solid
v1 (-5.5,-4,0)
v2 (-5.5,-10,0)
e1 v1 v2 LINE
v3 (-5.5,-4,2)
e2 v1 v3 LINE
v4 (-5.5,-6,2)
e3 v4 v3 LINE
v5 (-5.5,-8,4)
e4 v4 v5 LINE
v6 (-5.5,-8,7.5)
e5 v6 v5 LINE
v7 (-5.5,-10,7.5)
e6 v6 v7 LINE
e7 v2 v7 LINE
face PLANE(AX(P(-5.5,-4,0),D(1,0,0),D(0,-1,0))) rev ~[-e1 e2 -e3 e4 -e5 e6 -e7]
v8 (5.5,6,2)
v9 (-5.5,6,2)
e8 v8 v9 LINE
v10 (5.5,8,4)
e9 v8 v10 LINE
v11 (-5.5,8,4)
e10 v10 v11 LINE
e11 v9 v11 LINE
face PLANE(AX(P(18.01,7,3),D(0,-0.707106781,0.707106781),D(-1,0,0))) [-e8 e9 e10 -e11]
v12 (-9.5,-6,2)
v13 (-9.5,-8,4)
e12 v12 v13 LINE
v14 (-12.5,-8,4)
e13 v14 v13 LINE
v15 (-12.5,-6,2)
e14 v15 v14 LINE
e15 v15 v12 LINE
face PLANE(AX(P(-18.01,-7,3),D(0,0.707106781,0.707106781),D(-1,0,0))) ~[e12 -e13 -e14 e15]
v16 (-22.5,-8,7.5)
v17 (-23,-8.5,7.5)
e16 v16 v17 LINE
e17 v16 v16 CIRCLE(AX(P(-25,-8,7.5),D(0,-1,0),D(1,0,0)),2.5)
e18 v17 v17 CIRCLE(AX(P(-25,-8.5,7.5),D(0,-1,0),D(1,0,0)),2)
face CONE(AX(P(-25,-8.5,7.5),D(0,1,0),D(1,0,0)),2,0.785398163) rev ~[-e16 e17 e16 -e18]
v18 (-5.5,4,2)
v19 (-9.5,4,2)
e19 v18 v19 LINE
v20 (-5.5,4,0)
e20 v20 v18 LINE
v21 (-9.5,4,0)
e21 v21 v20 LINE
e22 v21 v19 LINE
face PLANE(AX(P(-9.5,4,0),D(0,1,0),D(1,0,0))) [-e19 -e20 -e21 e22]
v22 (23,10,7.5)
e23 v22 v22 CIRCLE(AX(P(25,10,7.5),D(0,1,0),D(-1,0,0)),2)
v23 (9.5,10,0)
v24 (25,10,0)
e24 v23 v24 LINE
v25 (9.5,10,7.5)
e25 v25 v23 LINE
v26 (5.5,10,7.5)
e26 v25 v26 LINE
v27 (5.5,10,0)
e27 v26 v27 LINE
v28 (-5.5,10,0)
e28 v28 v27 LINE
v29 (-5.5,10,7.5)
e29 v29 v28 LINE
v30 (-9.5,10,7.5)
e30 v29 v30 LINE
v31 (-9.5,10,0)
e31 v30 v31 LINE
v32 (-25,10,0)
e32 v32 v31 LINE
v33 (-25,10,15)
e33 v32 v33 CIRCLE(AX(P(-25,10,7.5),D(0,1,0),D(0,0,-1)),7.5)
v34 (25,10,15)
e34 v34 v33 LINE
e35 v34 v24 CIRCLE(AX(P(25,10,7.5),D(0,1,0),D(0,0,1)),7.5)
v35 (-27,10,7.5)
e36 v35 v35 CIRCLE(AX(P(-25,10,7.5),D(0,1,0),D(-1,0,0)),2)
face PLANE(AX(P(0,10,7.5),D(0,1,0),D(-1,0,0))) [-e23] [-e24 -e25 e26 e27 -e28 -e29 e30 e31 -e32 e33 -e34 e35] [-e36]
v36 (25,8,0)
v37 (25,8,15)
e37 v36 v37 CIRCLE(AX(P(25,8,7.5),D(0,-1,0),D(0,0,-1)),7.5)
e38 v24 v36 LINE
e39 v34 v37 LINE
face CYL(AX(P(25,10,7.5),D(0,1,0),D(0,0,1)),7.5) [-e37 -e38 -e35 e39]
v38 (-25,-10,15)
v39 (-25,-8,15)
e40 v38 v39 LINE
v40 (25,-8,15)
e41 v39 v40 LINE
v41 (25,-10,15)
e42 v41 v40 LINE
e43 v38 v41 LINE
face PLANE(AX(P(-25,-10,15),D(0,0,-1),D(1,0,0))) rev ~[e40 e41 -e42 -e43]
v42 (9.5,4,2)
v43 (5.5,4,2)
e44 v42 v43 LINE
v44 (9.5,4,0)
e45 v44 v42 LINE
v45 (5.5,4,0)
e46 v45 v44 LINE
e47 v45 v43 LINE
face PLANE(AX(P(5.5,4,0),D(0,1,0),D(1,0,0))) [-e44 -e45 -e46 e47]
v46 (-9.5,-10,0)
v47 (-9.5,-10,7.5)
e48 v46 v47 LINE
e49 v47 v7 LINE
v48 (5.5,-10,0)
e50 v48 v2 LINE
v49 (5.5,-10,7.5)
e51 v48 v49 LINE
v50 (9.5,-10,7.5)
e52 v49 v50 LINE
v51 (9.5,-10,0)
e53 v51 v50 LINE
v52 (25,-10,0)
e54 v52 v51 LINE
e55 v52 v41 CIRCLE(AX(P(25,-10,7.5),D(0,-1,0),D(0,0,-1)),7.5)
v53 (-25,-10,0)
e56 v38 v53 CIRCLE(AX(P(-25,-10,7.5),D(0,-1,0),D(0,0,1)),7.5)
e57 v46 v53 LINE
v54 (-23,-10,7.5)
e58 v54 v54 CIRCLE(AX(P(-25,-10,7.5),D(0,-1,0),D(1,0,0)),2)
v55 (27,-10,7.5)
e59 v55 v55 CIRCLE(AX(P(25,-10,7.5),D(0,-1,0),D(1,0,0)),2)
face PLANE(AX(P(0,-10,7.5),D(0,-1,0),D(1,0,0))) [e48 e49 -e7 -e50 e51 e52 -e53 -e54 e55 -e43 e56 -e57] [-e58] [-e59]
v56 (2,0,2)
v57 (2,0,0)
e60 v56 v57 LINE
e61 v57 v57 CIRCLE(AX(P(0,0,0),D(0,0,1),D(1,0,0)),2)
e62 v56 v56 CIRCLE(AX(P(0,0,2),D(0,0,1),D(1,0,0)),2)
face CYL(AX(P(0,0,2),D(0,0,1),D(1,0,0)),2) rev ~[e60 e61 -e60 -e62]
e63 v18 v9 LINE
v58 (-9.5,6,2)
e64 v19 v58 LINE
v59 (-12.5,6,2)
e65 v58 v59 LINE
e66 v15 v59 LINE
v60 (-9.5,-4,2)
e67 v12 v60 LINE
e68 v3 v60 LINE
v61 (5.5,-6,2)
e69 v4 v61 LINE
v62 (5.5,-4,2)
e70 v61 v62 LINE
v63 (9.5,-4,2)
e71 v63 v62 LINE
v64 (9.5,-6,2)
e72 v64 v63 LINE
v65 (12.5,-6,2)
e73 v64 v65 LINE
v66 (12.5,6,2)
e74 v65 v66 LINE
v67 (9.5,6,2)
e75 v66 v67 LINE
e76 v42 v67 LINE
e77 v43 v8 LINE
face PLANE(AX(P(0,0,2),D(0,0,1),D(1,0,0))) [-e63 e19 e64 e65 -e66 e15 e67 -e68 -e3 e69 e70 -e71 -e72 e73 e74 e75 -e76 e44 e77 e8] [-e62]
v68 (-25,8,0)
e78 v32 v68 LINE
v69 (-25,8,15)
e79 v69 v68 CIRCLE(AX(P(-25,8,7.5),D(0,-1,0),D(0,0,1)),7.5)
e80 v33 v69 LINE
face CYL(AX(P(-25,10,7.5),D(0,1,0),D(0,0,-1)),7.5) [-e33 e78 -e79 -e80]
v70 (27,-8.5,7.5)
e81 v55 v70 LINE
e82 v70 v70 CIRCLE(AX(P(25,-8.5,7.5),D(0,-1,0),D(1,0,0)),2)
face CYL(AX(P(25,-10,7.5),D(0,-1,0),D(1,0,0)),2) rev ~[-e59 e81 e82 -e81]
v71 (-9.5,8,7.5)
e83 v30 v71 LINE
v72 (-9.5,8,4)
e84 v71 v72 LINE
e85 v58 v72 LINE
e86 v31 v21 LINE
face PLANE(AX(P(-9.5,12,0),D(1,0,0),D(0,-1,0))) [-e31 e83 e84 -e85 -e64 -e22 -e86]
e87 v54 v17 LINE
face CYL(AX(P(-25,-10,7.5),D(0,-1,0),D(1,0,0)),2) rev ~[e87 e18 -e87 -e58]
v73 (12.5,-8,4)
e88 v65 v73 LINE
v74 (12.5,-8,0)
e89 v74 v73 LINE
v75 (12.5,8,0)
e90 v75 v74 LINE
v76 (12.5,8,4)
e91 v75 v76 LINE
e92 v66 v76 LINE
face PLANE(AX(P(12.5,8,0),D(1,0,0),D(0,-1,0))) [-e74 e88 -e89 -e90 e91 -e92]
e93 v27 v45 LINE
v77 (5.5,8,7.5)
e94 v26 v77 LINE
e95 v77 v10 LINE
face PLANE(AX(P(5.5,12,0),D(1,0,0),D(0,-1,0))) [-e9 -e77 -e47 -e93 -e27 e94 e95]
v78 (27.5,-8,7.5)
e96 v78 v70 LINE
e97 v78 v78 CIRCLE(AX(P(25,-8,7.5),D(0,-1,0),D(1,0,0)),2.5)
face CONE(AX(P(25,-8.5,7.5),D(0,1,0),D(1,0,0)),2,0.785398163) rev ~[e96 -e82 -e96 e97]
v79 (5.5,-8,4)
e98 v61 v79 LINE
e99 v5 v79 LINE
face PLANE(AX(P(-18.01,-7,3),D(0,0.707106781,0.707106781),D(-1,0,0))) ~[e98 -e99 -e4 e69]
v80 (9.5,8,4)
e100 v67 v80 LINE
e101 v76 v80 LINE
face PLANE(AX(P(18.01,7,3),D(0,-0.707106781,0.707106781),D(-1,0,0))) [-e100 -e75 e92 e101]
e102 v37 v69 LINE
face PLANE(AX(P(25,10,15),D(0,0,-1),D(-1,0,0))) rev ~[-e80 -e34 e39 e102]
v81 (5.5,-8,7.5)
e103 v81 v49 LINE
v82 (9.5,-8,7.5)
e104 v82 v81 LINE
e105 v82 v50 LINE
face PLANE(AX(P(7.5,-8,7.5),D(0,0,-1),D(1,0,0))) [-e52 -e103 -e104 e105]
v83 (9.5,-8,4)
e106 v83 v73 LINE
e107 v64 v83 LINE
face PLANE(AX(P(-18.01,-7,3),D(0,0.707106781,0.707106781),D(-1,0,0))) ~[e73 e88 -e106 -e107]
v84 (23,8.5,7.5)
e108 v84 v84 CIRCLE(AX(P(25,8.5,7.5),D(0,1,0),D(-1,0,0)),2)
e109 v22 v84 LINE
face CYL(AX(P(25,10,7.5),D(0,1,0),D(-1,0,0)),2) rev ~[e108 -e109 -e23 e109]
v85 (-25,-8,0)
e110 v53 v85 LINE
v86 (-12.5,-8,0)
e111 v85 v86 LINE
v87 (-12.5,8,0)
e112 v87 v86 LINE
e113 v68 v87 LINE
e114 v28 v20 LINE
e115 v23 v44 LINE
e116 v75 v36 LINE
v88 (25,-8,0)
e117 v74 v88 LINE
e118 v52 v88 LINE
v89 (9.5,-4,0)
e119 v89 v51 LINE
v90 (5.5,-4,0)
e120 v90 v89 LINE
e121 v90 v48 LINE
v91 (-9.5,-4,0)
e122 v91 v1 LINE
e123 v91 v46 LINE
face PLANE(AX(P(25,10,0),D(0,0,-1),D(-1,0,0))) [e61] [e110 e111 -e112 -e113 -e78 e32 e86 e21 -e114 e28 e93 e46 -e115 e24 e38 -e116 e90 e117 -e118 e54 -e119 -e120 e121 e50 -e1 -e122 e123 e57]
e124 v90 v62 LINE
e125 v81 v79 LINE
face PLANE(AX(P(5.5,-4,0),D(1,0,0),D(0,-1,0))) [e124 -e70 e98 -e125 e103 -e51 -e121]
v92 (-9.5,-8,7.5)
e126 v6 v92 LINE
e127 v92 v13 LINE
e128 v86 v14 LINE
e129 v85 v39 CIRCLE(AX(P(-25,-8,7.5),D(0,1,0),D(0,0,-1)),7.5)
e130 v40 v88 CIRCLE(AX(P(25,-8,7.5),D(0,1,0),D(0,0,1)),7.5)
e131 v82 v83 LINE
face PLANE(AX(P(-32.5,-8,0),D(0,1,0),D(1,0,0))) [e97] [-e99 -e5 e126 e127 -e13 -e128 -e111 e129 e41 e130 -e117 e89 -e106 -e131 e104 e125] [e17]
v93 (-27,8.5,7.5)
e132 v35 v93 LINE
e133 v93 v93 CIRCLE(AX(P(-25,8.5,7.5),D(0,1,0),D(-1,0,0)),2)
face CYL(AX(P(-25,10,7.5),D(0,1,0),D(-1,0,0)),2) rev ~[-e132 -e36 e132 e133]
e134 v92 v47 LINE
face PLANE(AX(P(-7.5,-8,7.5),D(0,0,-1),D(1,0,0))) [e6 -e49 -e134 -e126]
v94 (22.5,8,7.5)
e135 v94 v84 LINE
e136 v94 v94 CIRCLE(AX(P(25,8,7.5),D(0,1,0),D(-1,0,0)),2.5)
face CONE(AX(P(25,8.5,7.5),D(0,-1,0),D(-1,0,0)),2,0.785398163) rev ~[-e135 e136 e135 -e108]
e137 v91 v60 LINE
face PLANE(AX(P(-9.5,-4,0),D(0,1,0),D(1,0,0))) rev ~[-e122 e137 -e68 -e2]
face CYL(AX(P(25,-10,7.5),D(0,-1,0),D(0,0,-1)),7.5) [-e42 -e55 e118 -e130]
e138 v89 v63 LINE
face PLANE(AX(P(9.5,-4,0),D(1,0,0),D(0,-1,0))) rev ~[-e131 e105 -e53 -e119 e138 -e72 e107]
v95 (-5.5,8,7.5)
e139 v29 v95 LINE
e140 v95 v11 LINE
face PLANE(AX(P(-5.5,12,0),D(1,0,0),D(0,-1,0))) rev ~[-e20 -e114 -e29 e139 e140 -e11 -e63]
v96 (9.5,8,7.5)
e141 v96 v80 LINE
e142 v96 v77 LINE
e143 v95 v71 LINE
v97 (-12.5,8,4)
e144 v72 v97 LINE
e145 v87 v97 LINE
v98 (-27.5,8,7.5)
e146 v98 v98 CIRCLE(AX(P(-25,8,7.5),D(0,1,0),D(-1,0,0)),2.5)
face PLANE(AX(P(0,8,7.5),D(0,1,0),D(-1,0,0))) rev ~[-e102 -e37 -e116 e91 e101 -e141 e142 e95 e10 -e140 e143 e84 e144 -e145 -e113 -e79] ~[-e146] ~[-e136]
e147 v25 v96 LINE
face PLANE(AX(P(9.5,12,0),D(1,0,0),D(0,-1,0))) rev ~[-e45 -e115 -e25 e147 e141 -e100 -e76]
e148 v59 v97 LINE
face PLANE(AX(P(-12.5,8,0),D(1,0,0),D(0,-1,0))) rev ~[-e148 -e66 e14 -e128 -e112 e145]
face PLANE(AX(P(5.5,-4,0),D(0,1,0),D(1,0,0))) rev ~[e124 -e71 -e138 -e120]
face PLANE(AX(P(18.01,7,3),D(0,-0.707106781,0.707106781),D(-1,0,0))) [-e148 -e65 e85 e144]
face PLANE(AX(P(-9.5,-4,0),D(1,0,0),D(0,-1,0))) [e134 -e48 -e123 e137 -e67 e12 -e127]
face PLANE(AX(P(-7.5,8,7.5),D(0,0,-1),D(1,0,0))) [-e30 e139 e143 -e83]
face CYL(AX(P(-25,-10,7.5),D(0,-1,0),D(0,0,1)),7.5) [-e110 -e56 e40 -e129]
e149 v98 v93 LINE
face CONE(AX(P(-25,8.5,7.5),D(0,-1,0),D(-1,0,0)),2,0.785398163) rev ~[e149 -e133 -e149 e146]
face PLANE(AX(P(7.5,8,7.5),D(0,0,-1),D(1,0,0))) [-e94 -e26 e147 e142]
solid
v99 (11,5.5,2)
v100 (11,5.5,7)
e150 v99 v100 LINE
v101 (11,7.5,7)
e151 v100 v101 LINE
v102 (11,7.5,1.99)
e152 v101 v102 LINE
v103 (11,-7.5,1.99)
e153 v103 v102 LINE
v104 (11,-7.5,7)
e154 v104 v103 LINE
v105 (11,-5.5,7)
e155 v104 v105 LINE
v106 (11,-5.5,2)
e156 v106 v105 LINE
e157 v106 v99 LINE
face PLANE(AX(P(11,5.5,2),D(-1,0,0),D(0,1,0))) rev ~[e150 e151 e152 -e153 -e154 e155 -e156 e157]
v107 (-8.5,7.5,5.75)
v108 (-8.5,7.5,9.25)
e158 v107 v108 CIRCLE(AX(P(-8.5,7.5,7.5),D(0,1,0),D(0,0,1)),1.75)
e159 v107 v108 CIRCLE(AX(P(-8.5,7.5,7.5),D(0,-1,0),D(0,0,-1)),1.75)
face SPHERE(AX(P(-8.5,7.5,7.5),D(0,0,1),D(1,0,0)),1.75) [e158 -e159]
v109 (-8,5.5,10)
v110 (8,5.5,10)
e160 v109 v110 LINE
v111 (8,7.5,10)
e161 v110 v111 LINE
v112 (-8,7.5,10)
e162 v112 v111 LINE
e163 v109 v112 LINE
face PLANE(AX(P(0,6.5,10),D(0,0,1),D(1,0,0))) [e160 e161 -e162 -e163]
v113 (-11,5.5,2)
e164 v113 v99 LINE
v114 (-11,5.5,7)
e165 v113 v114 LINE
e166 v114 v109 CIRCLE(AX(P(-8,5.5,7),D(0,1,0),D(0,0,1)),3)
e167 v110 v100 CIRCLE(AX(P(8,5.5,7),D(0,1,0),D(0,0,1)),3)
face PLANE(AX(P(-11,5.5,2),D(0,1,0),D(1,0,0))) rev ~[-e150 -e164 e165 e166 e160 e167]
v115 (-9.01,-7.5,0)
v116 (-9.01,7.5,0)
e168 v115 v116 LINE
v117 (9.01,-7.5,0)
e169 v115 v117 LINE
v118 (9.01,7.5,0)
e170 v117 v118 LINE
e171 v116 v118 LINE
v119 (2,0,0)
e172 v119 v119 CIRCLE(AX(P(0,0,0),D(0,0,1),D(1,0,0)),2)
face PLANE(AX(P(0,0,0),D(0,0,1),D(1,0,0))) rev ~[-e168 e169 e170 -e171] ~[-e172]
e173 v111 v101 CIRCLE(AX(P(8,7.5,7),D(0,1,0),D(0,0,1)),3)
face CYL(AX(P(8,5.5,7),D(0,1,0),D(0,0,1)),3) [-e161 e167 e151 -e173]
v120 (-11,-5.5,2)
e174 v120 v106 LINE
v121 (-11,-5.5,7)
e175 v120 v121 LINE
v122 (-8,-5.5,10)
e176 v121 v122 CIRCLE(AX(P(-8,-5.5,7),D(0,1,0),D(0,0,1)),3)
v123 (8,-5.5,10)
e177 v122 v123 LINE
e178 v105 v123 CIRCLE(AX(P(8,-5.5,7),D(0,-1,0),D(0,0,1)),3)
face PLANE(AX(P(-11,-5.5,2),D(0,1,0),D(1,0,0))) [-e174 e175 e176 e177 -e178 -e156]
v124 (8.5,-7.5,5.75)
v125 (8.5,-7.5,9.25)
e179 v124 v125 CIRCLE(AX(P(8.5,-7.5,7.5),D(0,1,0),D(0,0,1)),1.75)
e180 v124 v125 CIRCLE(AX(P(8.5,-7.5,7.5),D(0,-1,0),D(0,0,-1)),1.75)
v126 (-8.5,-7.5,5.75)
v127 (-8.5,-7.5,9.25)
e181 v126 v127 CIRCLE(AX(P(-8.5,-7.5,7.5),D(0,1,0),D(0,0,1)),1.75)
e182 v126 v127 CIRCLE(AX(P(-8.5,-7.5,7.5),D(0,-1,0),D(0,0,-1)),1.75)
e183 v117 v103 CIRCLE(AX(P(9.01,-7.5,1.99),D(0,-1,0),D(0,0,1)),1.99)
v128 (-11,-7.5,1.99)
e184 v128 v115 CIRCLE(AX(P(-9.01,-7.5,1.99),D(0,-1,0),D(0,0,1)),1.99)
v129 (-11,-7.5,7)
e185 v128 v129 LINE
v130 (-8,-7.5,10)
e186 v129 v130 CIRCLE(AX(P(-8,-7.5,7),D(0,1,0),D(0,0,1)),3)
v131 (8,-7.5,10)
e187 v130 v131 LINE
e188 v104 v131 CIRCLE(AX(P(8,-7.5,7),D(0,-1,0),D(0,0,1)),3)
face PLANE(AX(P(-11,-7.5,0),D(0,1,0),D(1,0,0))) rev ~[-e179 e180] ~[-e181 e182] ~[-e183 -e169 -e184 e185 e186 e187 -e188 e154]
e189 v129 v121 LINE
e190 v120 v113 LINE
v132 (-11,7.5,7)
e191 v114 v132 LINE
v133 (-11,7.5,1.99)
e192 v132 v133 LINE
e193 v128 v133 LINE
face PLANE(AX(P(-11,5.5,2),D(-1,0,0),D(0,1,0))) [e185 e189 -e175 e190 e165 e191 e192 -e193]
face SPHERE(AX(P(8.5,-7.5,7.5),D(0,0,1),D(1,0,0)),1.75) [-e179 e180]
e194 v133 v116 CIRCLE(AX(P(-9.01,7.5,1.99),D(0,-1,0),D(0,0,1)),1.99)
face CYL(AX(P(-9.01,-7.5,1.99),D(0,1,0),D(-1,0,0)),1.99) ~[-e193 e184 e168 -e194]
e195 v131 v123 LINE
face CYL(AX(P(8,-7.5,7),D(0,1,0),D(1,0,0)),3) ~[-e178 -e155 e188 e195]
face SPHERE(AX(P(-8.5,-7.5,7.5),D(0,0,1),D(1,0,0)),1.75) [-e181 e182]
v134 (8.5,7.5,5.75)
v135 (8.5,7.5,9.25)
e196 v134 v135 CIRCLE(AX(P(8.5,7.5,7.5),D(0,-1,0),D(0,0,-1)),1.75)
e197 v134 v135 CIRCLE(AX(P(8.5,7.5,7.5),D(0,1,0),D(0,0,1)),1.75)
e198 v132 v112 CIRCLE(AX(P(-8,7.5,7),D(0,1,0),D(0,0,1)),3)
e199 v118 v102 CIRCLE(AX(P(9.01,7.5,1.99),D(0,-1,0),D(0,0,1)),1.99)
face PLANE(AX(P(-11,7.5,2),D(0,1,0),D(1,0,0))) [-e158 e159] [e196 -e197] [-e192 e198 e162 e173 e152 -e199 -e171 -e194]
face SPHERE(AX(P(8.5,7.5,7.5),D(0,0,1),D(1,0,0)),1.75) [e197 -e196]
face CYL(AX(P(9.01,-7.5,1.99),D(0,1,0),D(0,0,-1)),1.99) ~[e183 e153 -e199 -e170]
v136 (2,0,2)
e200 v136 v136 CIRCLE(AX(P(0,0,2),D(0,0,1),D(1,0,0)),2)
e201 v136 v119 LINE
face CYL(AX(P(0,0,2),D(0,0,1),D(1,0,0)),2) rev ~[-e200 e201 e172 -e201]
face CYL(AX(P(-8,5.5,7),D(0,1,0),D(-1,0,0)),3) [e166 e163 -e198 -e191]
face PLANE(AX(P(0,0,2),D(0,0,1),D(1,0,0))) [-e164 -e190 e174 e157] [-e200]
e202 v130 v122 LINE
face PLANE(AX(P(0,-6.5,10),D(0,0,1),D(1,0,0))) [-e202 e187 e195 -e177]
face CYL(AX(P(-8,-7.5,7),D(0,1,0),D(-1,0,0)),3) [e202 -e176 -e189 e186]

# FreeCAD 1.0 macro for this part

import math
import FreeCAD as App
import Part
import Sketcher
Q = App.Units.Quantity


def edges_at(feature, points):
    """Names of the edges that pass closest to the given points."""
    edges = feature.Shape.Edges
    near = lambda p: min(range(len(edges)), key=lambda i: edges[i].distToShape(Part.Vertex(*p))[0])
    return sorted({f"Edge{near(p) + 1}" for p in points})

doc = App.newDocument("Part")
params = doc.addObject("Spreadsheet::Sheet", "Params")
for row, (alias, value) in enumerate([
    ("sketch1_radius", "1.75 mm"),
    ("revolution_angle", "360 deg"),
    ("sketch2_radius", "1.75 mm"),
    ("revolution2_angle", "360 deg"),
    ("sketch3_radius", "1.75 mm"),
    ("revolution3_angle", "360 deg"),
    ("sketch4_radius", "1.75 mm"),
    ("revolution4_angle", "360 deg"),
    ("sketch5_width", "22 mm"),
    ("sketch5_height", "15 mm"),
    ("pad1_length", "2 mm"),
    ("sketch6_width", "22 mm"),
    ("sketch6_height", "2 mm"),
    ("pad2_length", "8 mm"),
    ("fillet_radius", "3 mm"),
    ("fillet2_radius", "1.99 mm"),
    ("sketch7_diameter", "4 mm"),
    ("sketch8_width", "40 mm"),
    ("sketch8_height", "20 mm"),
    ("pad3_length", "2 mm"),
    ("sketch9_diameter", "4 mm"),
    ("sketch9_radius", "7.5 mm"),
    ("sketch9_width", "50 mm"),
    ("pad4_length", "2 mm"),
    ("sketch10_diameter", "4 mm"),
    ("sketch10_radius", "7.5 mm"),
    ("sketch10_width", "50 mm"),
    ("pad5_length", "2 mm"),
    ("chamfer_size", "0.5 mm"),
    ("chamfer2_size", "1.99 mm"),
    ("chamfer3_size", "2 mm"),
    ("sketch11_width", "20 mm"),
    ("sketch11_height", "16 mm"),
    ("pocket2_length", "5 mm"),
    ("sketch12_diameter", "4 mm"),
    ("pocket3_length", "5 mm"),
    ("sketch13_width", "4 mm"),
    ("sketch13_height", "8 mm"),
    ("pocket4_length", "7.5 mm"),
], start=1):
    params.set(f"A{row}", alias)
    params.set(f"B{row}", "=" + value)
    params.setAlias(f"B{row}", alias)

body = doc.addObject("PartDesign::Body", "Body")

sketch1 = body.newObject("Sketcher::SketchObject", "Sketch")
sketch1.AttachmentSupport = (doc.getObject("XZ_Plane"), [""])
sketch1.MapMode = "FlatFace"
sketch1.AttachmentOffset = App.Placement(App.Vector(0, 0, -7.5), App.Rotation())
sketch1.addGeometry([
    Part.ArcOfCircle(Part.Circle(App.Vector(-8.5, 7.5, 0), App.Vector(0, 0, 1), 1.8), math.radians(-90), math.radians(90)),
    Part.LineSegment(App.Vector(-8.5, 9.2, 0), App.Vector(-8.5, 5.8, 0)),
], False)
sketch1.addGeometry(Part.LineSegment(App.Vector(-8.5, 5.8, 0), App.Vector(-8.5, 9.2, 0)), True)
sketch1.addConstraint([
    Sketcher.Constraint("Coincident", 0, 1, 1, 2),
    Sketcher.Constraint("Coincident", 1, 1, 0, 2),
    Sketcher.Constraint("Vertical", 1),
    Sketcher.Constraint("Vertical", 2),
    Sketcher.Constraint("Coincident", 2, 1, 0, 1),
    Sketcher.Constraint("Equal", 1, 2),
    Sketcher.Constraint("Radius", 0, Q("1.75 mm")),
    Sketcher.Constraint("DistanceX", 0, 3, -1, 1, Q("8.5 mm")),
    Sketcher.Constraint("DistanceY", -1, 1, 0, 3, Q("7.5 mm")),
    Sketcher.Constraint("DistanceX", 0, 1, -1, 1, Q("8.5 mm")),
])
sketch1.setExpression("Constraints[6]", "Params.sketch1_radius")
revolution = body.newObject("PartDesign::Revolution", "Revolution")
revolution.Profile = sketch1
revolution.ReferenceAxis = (sketch1, ["Axis0"])
revolution.setExpression("Angle", "Params.revolution_angle")
body2 = doc.addObject("PartDesign::Body", "Body001")
body2.AllowCompound = True

sketch2 = body2.newObject("Sketcher::SketchObject", "Sketch001")
sketch2.AttachmentSupport = (doc.getObject("XZ_Plane001"), [""])
sketch2.MapMode = "FlatFace"
sketch2.AttachmentOffset = App.Placement(App.Vector(0, 0, -7.5), App.Rotation())
sketch2.addGeometry([
    Part.ArcOfCircle(Part.Circle(App.Vector(8.5, 7.5, 0), App.Vector(0, 0, 1), 1.8), math.radians(-90), math.radians(90)),
    Part.LineSegment(App.Vector(8.5, 9.2, 0), App.Vector(8.5, 5.8, 0)),
], False)
sketch2.addGeometry(Part.LineSegment(App.Vector(8.5, 5.8, 0), App.Vector(8.5, 9.2, 0)), True)
sketch2.addConstraint([
    Sketcher.Constraint("Coincident", 0, 1, 1, 2),
    Sketcher.Constraint("Coincident", 1, 1, 0, 2),
    Sketcher.Constraint("Vertical", 1),
    Sketcher.Constraint("Vertical", 2),
    Sketcher.Constraint("Coincident", 2, 1, 0, 1),
    Sketcher.Constraint("Equal", 1, 2),
    Sketcher.Constraint("Radius", 0, Q("1.75 mm")),
    Sketcher.Constraint("DistanceX", -1, 1, 0, 3, Q("8.5 mm")),
    Sketcher.Constraint("DistanceY", -1, 1, 0, 3, Q("7.5 mm")),
    Sketcher.Constraint("DistanceX", -1, 1, 0, 1, Q("8.5 mm")),
])
sketch2.setExpression("Constraints[6]", "Params.sketch2_radius")
revolution2 = body2.newObject("PartDesign::Revolution", "Revolution001")
revolution2.Profile = sketch2
revolution2.ReferenceAxis = (sketch2, ["Axis0"])
revolution2.setExpression("Angle", "Params.revolution2_angle")
doc.recompute()

boolean = body2.newObject("PartDesign::Boolean", "Boolean")
boolean.Type = "Fuse"
boolean.addObjects([body])
body3 = doc.addObject("PartDesign::Body", "Body002")

sketch3 = body3.newObject("Sketcher::SketchObject", "Sketch002")
sketch3.AttachmentSupport = (doc.getObject("XZ_Plane002"), [""])
sketch3.MapMode = "FlatFace"
sketch3.AttachmentOffset = App.Placement(App.Vector(0, 0, 7.5), App.Rotation())
sketch3.addGeometry([
    Part.ArcOfCircle(Part.Circle(App.Vector(8.5, 7.5, 0), App.Vector(0, 0, 1), 1.8), math.radians(-90), math.radians(90)),
    Part.LineSegment(App.Vector(8.5, 9.2, 0), App.Vector(8.5, 5.8, 0)),
], False)
sketch3.addGeometry(Part.LineSegment(App.Vector(8.5, 5.8, 0), App.Vector(8.5, 9.2, 0)), True)
sketch3.addConstraint([
    Sketcher.Constraint("Coincident", 0, 1, 1, 2),
    Sketcher.Constraint("Coincident", 1, 1, 0, 2),
    Sketcher.Constraint("Vertical", 1),
    Sketcher.Constraint("Vertical", 2),
    Sketcher.Constraint("Coincident", 2, 1, 0, 1),
    Sketcher.Constraint("Equal", 1, 2),
    Sketcher.Constraint("Radius", 0, Q("1.75 mm")),
    Sketcher.Constraint("DistanceX", -1, 1, 0, 3, Q("8.5 mm")),
    Sketcher.Constraint("DistanceY", -1, 1, 0, 3, Q("7.5 mm")),
    Sketcher.Constraint("DistanceX", -1, 1, 0, 1, Q("8.5 mm")),
])
sketch3.setExpression("Constraints[6]", "Params.sketch3_radius")
revolution3 = body3.newObject("PartDesign::Revolution", "Revolution002")
revolution3.Profile = sketch3
revolution3.ReferenceAxis = (sketch3, ["Axis0"])
revolution3.setExpression("Angle", "Params.revolution3_angle")
body4 = doc.addObject("PartDesign::Body", "Body003")
body4.AllowCompound = True

sketch4 = body4.newObject("Sketcher::SketchObject", "Sketch003")
sketch4.AttachmentSupport = (doc.getObject("XZ_Plane003"), [""])
sketch4.MapMode = "FlatFace"
sketch4.AttachmentOffset = App.Placement(App.Vector(0, 0, 7.5), App.Rotation())
sketch4.addGeometry([
    Part.ArcOfCircle(Part.Circle(App.Vector(-8.5, 7.5, 0), App.Vector(0, 0, 1), 1.8), math.radians(-90), math.radians(90)),
    Part.LineSegment(App.Vector(-8.5, 9.2, 0), App.Vector(-8.5, 5.8, 0)),
], False)
sketch4.addGeometry(Part.LineSegment(App.Vector(-8.5, 5.8, 0), App.Vector(-8.5, 9.2, 0)), True)
sketch4.addConstraint([
    Sketcher.Constraint("Coincident", 0, 1, 1, 2),
    Sketcher.Constraint("Coincident", 1, 1, 0, 2),
    Sketcher.Constraint("Vertical", 1),
    Sketcher.Constraint("Vertical", 2),
    Sketcher.Constraint("Coincident", 2, 1, 0, 1),
    Sketcher.Constraint("Equal", 1, 2),
    Sketcher.Constraint("Radius", 0, Q("1.75 mm")),
    Sketcher.Constraint("DistanceX", 0, 3, -1, 1, Q("8.5 mm")),
    Sketcher.Constraint("DistanceY", -1, 1, 0, 3, Q("7.5 mm")),
    Sketcher.Constraint("DistanceX", 0, 1, -1, 1, Q("8.5 mm")),
])
sketch4.setExpression("Constraints[6]", "Params.sketch4_radius")
revolution4 = body4.newObject("PartDesign::Revolution", "Revolution003")
revolution4.Profile = sketch4
revolution4.ReferenceAxis = (sketch4, ["Axis0"])
revolution4.setExpression("Angle", "Params.revolution4_angle")
doc.recompute()

boolean2 = body4.newObject("PartDesign::Boolean", "Boolean001")
boolean2.Type = "Fuse"
boolean2.addObjects([body3])
body5 = doc.addObject("PartDesign::Body", "Body004")

sketch5 = body5.newObject("Sketcher::SketchObject", "Sketch004")
sketch5.AttachmentSupport = (doc.getObject("XY_Plane004"), [""])
sketch5.MapMode = "FlatFace"
sketch5.addGeometry([
    Part.LineSegment(App.Vector(-11, 8, 0), App.Vector(-11, -8, 0)),
    Part.LineSegment(App.Vector(-11, -8, 0), App.Vector(11, -8, 0)),
    Part.LineSegment(App.Vector(11, -8, 0), App.Vector(11, 8, 0)),
    Part.LineSegment(App.Vector(11, 8, 0), App.Vector(-11, 8, 0)),
], False)
sketch5.addConstraint([
    Sketcher.Constraint("Coincident", 0, 2, 1, 1),
    Sketcher.Constraint("Coincident", 1, 2, 2, 1),
    Sketcher.Constraint("Coincident", 2, 2, 3, 1),
    Sketcher.Constraint("Coincident", 3, 2, 0, 1),
    Sketcher.Constraint("Vertical", 0),
    Sketcher.Constraint("Horizontal", 1),
    Sketcher.Constraint("Vertical", 2),
    Sketcher.Constraint("Horizontal", 3),
    Sketcher.Constraint("Symmetric", 0, 2, 2, 2, -1, 1),
    Sketcher.Constraint("DistanceX", 1, 1, 1, 2, Q("22 mm")),
    Sketcher.Constraint("DistanceY", 0, 2, 0, 1, Q("15 mm")),
])
sketch5.setExpression("Constraints[9]", "Params.sketch5_width")
sketch5.setExpression("Constraints[10]", "Params.sketch5_height")
pad1 = body5.newObject("PartDesign::Pad", "Pad")
pad1.Profile = sketch5
pad1.setExpression("Length", "Params.pad1_length")

sketch6 = body5.newObject("Sketcher::SketchObject", "Sketch005")
sketch6.AttachmentSupport = (doc.getObject("XY_Plane004"), [""])
sketch6.MapMode = "FlatFace"
sketch6.AttachmentOffset = App.Placement(App.Vector(0, 0, 2), App.Rotation())
sketch6.addGeometry([
    Part.LineSegment(App.Vector(-11, 7.5, 0), App.Vector(-11, 5.5, 0)),
    Part.LineSegment(App.Vector(-11, 5.5, 0), App.Vector(11, 5.5, 0)),
    Part.LineSegment(App.Vector(11, 5.5, 0), App.Vector(11, 7.5, 0)),
    Part.LineSegment(App.Vector(11, 7.5, 0), App.Vector(-11, 7.5, 0)),
    Part.LineSegment(App.Vector(-11, -5.5, 0), App.Vector(-11, -7.5, 0)),
    Part.LineSegment(App.Vector(-11, -7.5, 0), App.Vector(11, -7.5, 0)),
    Part.LineSegment(App.Vector(11, -7.5, 0), App.Vector(11, -5.5, 0)),
    Part.LineSegment(App.Vector(11, -5.5, 0), App.Vector(-11, -5.5, 0)),
], False)
sketch6.addConstraint([
    Sketcher.Constraint("Coincident", 0, 2, 1, 1),
    Sketcher.Constraint("Coincident", 1, 2, 2, 1),
    Sketcher.Constraint("Coincident", 2, 2, 3, 1),
    Sketcher.Constraint("Coincident", 3, 2, 0, 1),
    Sketcher.Constraint("Coincident", 4, 2, 5, 1),
    Sketcher.Constraint("Coincident", 5, 2, 6, 1),
    Sketcher.Constraint("Coincident", 6, 2, 7, 1),
    Sketcher.Constraint("Coincident", 7, 2, 4, 1),
    Sketcher.Constraint("Vertical", 0),
    Sketcher.Constraint("Horizontal", 1),
    Sketcher.Constraint("Vertical", 2),
    Sketcher.Constraint("Horizontal", 3),
    Sketcher.Constraint("Vertical", 4),
    Sketcher.Constraint("Horizontal", 5),
    Sketcher.Constraint("Vertical", 6),
    Sketcher.Constraint("Horizontal", 7),
    Sketcher.Constraint("Symmetric", 2, 2, 4, 2, -1, 1),
    Sketcher.Constraint("Symmetric", 0, 2, 6, 2, -1, 1),
    Sketcher.Constraint("Vertical", 3, 2, 4, 2),
    Sketcher.Constraint("DistanceX", 1, 1, 1, 2, Q("22 mm")),
    Sketcher.Constraint("DistanceY", 0, 2, 0, 1, Q("2 mm")),
    Sketcher.Constraint("DistanceY", 4, 2, 0, 2, Q("13 mm")),
])
sketch6.setExpression("Constraints[19]", "Params.sketch6_width")
sketch6.setExpression("Constraints[20]", "Params.sketch6_height")
pad2 = body5.newObject("PartDesign::Pad", "Pad001")
pad2.Profile = sketch6
pad2.setExpression("Length", "Params.pad2_length")
doc.recompute()

boolean3 = body5.newObject("PartDesign::Boolean", "Boolean002")
boolean3.Type = "Fuse"
boolean3.addObjects([body4])
doc.recompute()

boolean4 = body5.newObject("PartDesign::Boolean", "Boolean003")
boolean4.Type = "Fuse"
boolean4.addObjects([body2])
doc.recompute()

fillet = body5.newObject("PartDesign::Fillet", "Fillet")
fillet.Base = (boolean4, edges_at(boolean4, [
    (11, 6.5, 10),
    (11, -6.5, 10),
    (-11, -6.5, 10),
    (-11, 6.5, 10),
]))
fillet.setExpression("Radius", "Params.fillet_radius")
doc.recompute()

fillet2 = body5.newObject("PartDesign::Fillet", "Fillet001")
fillet2.Base = (fillet, edges_at(fillet, [(11, 0, 0), (-11, 0, 0)]))
fillet2.setExpression("Radius", "Params.fillet2_radius")

sketch7 = body5.newObject("Sketcher::SketchObject", "Sketch006")
sketch7.AttachmentSupport = (doc.getObject("XY_Plane004"), [""])
sketch7.MapMode = "FlatFace"
sketch7.AttachmentOffset = App.Placement(App.Vector(0, 0, 2), App.Rotation())
sketch7.addGeometry(Part.Circle(App.Vector(0, 0, 0), App.Vector(0, 0, 1), 2), False)
sketch7.addConstraint([
    Sketcher.Constraint("Coincident", 0, 3, -1, 1),
    Sketcher.Constraint("Diameter", 0, Q("4 mm")),
])
sketch7.setExpression("Constraints[1]", "Params.sketch7_diameter")
pocket1 = body5.newObject("PartDesign::Pocket", "Pocket")
pocket1.Profile = sketch7
pocket1.Type = "ThroughAll"
body6 = doc.addObject("PartDesign::Body", "Body005")

sketch8 = body6.newObject("Sketcher::SketchObject", "Sketch007")
sketch8.AttachmentSupport = (doc.getObject("XY_Plane005"), [""])
sketch8.MapMode = "FlatFace"
sketch8.addGeometry([
    Part.LineSegment(App.Vector(-20, 10, 0), App.Vector(-20, -10, 0)),
    Part.LineSegment(App.Vector(-20, -10, 0), App.Vector(20, -10, 0)),
    Part.LineSegment(App.Vector(20, -10, 0), App.Vector(20, 10, 0)),
    Part.LineSegment(App.Vector(20, 10, 0), App.Vector(-20, 10, 0)),
], False)
sketch8.addConstraint([
    Sketcher.Constraint("Coincident", 0, 2, 1, 1),
    Sketcher.Constraint("Coincident", 1, 2, 2, 1),
    Sketcher.Constraint("Coincident", 2, 2, 3, 1),
    Sketcher.Constraint("Coincident", 3, 2, 0, 1),
    Sketcher.Constraint("Vertical", 0),
    Sketcher.Constraint("Horizontal", 1),
    Sketcher.Constraint("Vertical", 2),
    Sketcher.Constraint("Horizontal", 3),
    Sketcher.Constraint("Symmetric", 0, 2, 2, 2, -1, 1),
    Sketcher.Constraint("DistanceX", 1, 1, 1, 2, Q("40 mm")),
    Sketcher.Constraint("DistanceY", 0, 2, 0, 1, Q("20 mm")),
])
sketch8.setExpression("Constraints[9]", "Params.sketch8_width")
sketch8.setExpression("Constraints[10]", "Params.sketch8_height")
pad3 = body6.newObject("PartDesign::Pad", "Pad002")
pad3.Profile = sketch8
pad3.setExpression("Length", "Params.pad3_length")

sketch9 = body6.newObject("Sketcher::SketchObject", "Sketch008")
sketch9.AttachmentSupport = (doc.getObject("XZ_Plane005"), [""])
sketch9.MapMode = "FlatFace"
sketch9.AttachmentOffset = App.Placement(App.Vector(0, 0, 10), App.Rotation())
sketch9.addGeometry([
    Part.ArcOfCircle(Part.Circle(App.Vector(-25, 7.5, 0), App.Vector(0, 0, 1), 7.5), math.radians(90), math.radians(270)),
    Part.LineSegment(App.Vector(-25, 0, 0), App.Vector(25, 0, 0)),
    Part.ArcOfCircle(Part.Circle(App.Vector(25, 7.5, 0), App.Vector(0, 0, 1), 7.5), math.radians(-90), math.radians(90)),
    Part.LineSegment(App.Vector(25, 15, 0), App.Vector(-25, 15, 0)),
    Part.Circle(App.Vector(-25, 7.5, 0), App.Vector(0, 0, 1), 2),
    Part.Circle(App.Vector(25, 7.5, 0), App.Vector(0, 0, 1), 2),
], False)
sketch9.addConstraint([
    Sketcher.Constraint("Tangent", 0, 2, 1, 1),
    Sketcher.Constraint("Tangent", 1, 2, 2, 1),
    Sketcher.Constraint("Tangent", 2, 2, 3, 1),
    Sketcher.Constraint("Tangent", 3, 2, 0, 1),
    Sketcher.Constraint("Horizontal", 1),
    Sketcher.Constraint("Horizontal", 3),
    Sketcher.Constraint("Coincident", 4, 3, 0, 3),
    Sketcher.Constraint("Coincident", 5, 3, 2, 3),
    Sketcher.Constraint("Equal", 4, 5),
    Sketcher.Constraint("Symmetric", 0, 2, 1, 2, -1, 1),
    Sketcher.Constraint("Diameter", 4, Q("4 mm")),
    Sketcher.Constraint("Radius", 0, Q("7.5 mm")),
    Sketcher.Constraint("DistanceX", 1, 1, 1, 2, Q("50 mm")),
])
sketch9.setExpression("Constraints[10]", "Params.sketch9_diameter")
sketch9.setExpression("Constraints[11]", "Params.sketch9_radius")
sketch9.setExpression("Constraints[12]", "Params.sketch9_width")
pad4 = body6.newObject("PartDesign::Pad", "Pad003")
pad4.Profile = sketch9
pad4.setExpression("Length", "Params.pad4_length")
pad4.Reversed = True

sketch10 = body6.newObject("Sketcher::SketchObject", "Sketch009")
sketch10.AttachmentSupport = (doc.getObject("XZ_Plane005"), [""])
sketch10.MapMode = "FlatFace"
sketch10.AttachmentOffset = App.Placement(App.Vector(0, 0, -10), App.Rotation())
sketch10.addGeometry([
    Part.ArcOfCircle(Part.Circle(App.Vector(25, 7.5, 0), App.Vector(0, 0, 1), 7.5), math.radians(-90), math.radians(90)),
    Part.LineSegment(App.Vector(25, 0, 0), App.Vector(-25, 0, 0)),
    Part.ArcOfCircle(Part.Circle(App.Vector(-25, 7.5, 0), App.Vector(0, 0, 1), 7.5), math.radians(90), math.radians(270)),
    Part.LineSegment(App.Vector(-25, 15, 0), App.Vector(25, 15, 0)),
    Part.Circle(App.Vector(25, 7.5, 0), App.Vector(0, 0, 1), 2),
    Part.Circle(App.Vector(-25, 7.5, 0), App.Vector(0, 0, 1), 2),
], False)
sketch10.addConstraint([
    Sketcher.Constraint("Tangent", 0, 1, 1, 1),
    Sketcher.Constraint("Tangent", 1, 2, 2, 2),
    Sketcher.Constraint("Tangent", 2, 1, 3, 1),
    Sketcher.Constraint("Tangent", 3, 2, 0, 2),
    Sketcher.Constraint("Horizontal", 1),
    Sketcher.Constraint("Horizontal", 3),
    Sketcher.Constraint("Coincident", 4, 3, 0, 3),
    Sketcher.Constraint("Coincident", 5, 3, 2, 3),
    Sketcher.Constraint("Equal", 4, 5),
    Sketcher.Constraint("Symmetric", 0, 1, 1, 2, -1, 1),
    Sketcher.Constraint("Diameter", 4, Q("4 mm")),
    Sketcher.Constraint("Radius", 0, Q("7.5 mm")),
    Sketcher.Constraint("DistanceX", 1, 2, 1, 1, Q("50 mm")),
])
sketch10.setExpression("Constraints[10]", "Params.sketch10_diameter")
sketch10.setExpression("Constraints[11]", "Params.sketch10_radius")
sketch10.setExpression("Constraints[12]", "Params.sketch10_width")
pad5 = body6.newObject("PartDesign::Pad", "Pad004")
pad5.Profile = sketch10
pad5.setExpression("Length", "Params.pad5_length")
doc.recompute()

chamfer = body6.newObject("PartDesign::Chamfer", "Chamfer")
chamfer.Base = (pad5, edges_at(pad5, [
    (23, -8, 7.5),
    (-27, -8, 7.5),
    (-23, 8, 7.5),
    (27, 8, 7.5),
]))
chamfer.setExpression("Size", "Params.chamfer_size")
doc.recompute()

chamfer2 = body6.newObject("PartDesign::Chamfer", "Chamfer001")
chamfer2.Base = (chamfer, edges_at(chamfer, [(20, 0, 2), (-20, 0, 2)]))
chamfer2.setExpression("Size", "Params.chamfer2_size")
doc.recompute()

chamfer3 = body6.newObject("PartDesign::Chamfer", "Chamfer002")
chamfer3.Base = (chamfer2, edges_at(chamfer2, [(0, -8, 2), (0, 8, 2)]))
chamfer3.setExpression("Size", "Params.chamfer3_size")

sketch11 = body6.newObject("Sketcher::SketchObject", "Sketch010")
sketch11.AttachmentSupport = (doc.getObject("XY_Plane005"), [""])
sketch11.MapMode = "FlatFace"
sketch11.addGeometry([
    Part.LineSegment(App.Vector(-32, -8, 0), App.Vector(-32, 8, 0)),
    Part.LineSegment(App.Vector(-32, 8, 0), App.Vector(-12, 8, 0)),
    Part.LineSegment(App.Vector(-12, 8, 0), App.Vector(-12, -8, 0)),
    Part.LineSegment(App.Vector(-12, -8, 0), App.Vector(-32, -8, 0)),
    Part.LineSegment(App.Vector(12, -8, 0), App.Vector(12, 8, 0)),
    Part.LineSegment(App.Vector(12, 8, 0), App.Vector(32, 8, 0)),
    Part.LineSegment(App.Vector(32, 8, 0), App.Vector(32, -8, 0)),
    Part.LineSegment(App.Vector(32, -8, 0), App.Vector(12, -8, 0)),
], False)
sketch11.addConstraint([
    Sketcher.Constraint("Coincident", 0, 2, 1, 1),
    Sketcher.Constraint("Coincident", 1, 2, 2, 1),
    Sketcher.Constraint("Coincident", 2, 2, 3, 1),
    Sketcher.Constraint("Coincident", 3, 2, 0, 1),
    Sketcher.Constraint("Coincident", 4, 2, 5, 1),
    Sketcher.Constraint("Coincident", 5, 2, 6, 1),
    Sketcher.Constraint("Coincident", 6, 2, 7, 1),
    Sketcher.Constraint("Coincident", 7, 2, 4, 1),
    Sketcher.Constraint("Vertical", 0),
    Sketcher.Constraint("Horizontal", 1),
    Sketcher.Constraint("Vertical", 2),
    Sketcher.Constraint("Horizontal", 3),
    Sketcher.Constraint("Vertical", 4),
    Sketcher.Constraint("Horizontal", 5),
    Sketcher.Constraint("Vertical", 6),
    Sketcher.Constraint("Horizontal", 7),
    Sketcher.Constraint("Symmetric", 2, 2, 4, 2, -1, 1),
    Sketcher.Constraint("Symmetric", 0, 2, 6, 2, -1, 1),
    Sketcher.Constraint("Horizontal", 1, 2, 4, 2),
    Sketcher.Constraint("DistanceX", 1, 1, 1, 2, Q("20 mm")),
    Sketcher.Constraint("DistanceY", 0, 1, 0, 2, Q("16 mm")),
    Sketcher.Constraint("DistanceX", 1, 2, 4, 2, Q("25 mm")),
])
sketch11.setExpression("Constraints[19]", "Params.sketch11_width")
sketch11.setExpression("Constraints[20]", "Params.sketch11_height")
pocket2 = body6.newObject("PartDesign::Pocket", "Pocket001")
pocket2.Profile = sketch11
pocket2.setExpression("Length", "Params.pocket2_length")
pocket2.Reversed = True

sketch12 = body6.newObject("Sketcher::SketchObject", "Sketch011")
sketch12.AttachmentSupport = (doc.getObject("XY_Plane005"), [""])
sketch12.MapMode = "FlatFace"
sketch12.AttachmentOffset = App.Placement(App.Vector(0, 0, 2), App.Rotation())
sketch12.addGeometry(Part.Circle(App.Vector(0, 0, 0), App.Vector(0, 0, 1), 2), False)
sketch12.addConstraint([
    Sketcher.Constraint("Coincident", 0, 3, -1, 1),
    Sketcher.Constraint("Diameter", 0, Q("4 mm")),
])
sketch12.setExpression("Constraints[1]", "Params.sketch12_diameter")
pocket3 = body6.newObject("PartDesign::Pocket", "Pocket002")
pocket3.Profile = sketch12
pocket3.setExpression("Length", "Params.pocket3_length")

sketch13 = body6.newObject("Sketcher::SketchObject", "Sketch012")
sketch13.AttachmentSupport = (doc.getObject("XY_Plane005"), [""])
sketch13.MapMode = "FlatFace"
sketch13.addGeometry([
    Part.LineSegment(App.Vector(-9.5, -12, 0), App.Vector(-9.5, -4, 0)),
    Part.LineSegment(App.Vector(-9.5, -4, 0), App.Vector(-5.5, -4, 0)),
    Part.LineSegment(App.Vector(-5.5, -4, 0), App.Vector(-5.5, -12, 0)),
    Part.LineSegment(App.Vector(-5.5, -12, 0), App.Vector(-9.5, -12, 0)),
    Part.LineSegment(App.Vector(5.5, -12, 0), App.Vector(5.5, -4, 0)),
    Part.LineSegment(App.Vector(5.5, -4, 0), App.Vector(9.5, -4, 0)),
    Part.LineSegment(App.Vector(9.5, -4, 0), App.Vector(9.5, -12, 0)),
    Part.LineSegment(App.Vector(9.5, -12, 0), App.Vector(5.5, -12, 0)),
    Part.LineSegment(App.Vector(5.5, 4, 0), App.Vector(5.5, 12, 0)),
    Part.LineSegment(App.Vector(5.5, 12, 0), App.Vector(9.5, 12, 0)),
    Part.LineSegment(App.Vector(9.5, 12, 0), App.Vector(9.5, 4, 0)),
    Part.LineSegment(App.Vector(9.5, 4, 0), App.Vector(5.5, 4, 0)),
    Part.LineSegment(App.Vector(-9.5, 4, 0), App.Vector(-9.5, 12, 0)),
    Part.LineSegment(App.Vector(-9.5, 12, 0), App.Vector(-5.5, 12, 0)),
    Part.LineSegment(App.Vector(-5.5, 12, 0), App.Vector(-5.5, 4, 0)),
    Part.LineSegment(App.Vector(-5.5, 4, 0), App.Vector(-9.5, 4, 0)),
], False)
sketch13.addConstraint([
    Sketcher.Constraint("Coincident", 0, 2, 1, 1),
    Sketcher.Constraint("Coincident", 1, 2, 2, 1),
    Sketcher.Constraint("Coincident", 2, 2, 3, 1),
    Sketcher.Constraint("Coincident", 3, 2, 0, 1),
    Sketcher.Constraint("Coincident", 4, 2, 5, 1),
    Sketcher.Constraint("Coincident", 5, 2, 6, 1),
    Sketcher.Constraint("Coincident", 6, 2, 7, 1),
    Sketcher.Constraint("Coincident", 7, 2, 4, 1),
    Sketcher.Constraint("Coincident", 8, 2, 9, 1),
    Sketcher.Constraint("Coincident", 9, 2, 10, 1),
    Sketcher.Constraint("Coincident", 10, 2, 11, 1),
    Sketcher.Constraint("Coincident", 11, 2, 8, 1),
    Sketcher.Constraint("Coincident", 12, 2, 13, 1),
    Sketcher.Constraint("Coincident", 13, 2, 14, 1),
    Sketcher.Constraint("Coincident", 14, 2, 15, 1),
    Sketcher.Constraint("Coincident", 15, 2, 12, 1),
    Sketcher.Constraint("Vertical", 0),
    Sketcher.Constraint("Horizontal", 1),
    Sketcher.Constraint("Vertical", 2),
    Sketcher.Constraint("Horizontal", 3),
    Sketcher.Constraint("Vertical", 4),
    Sketcher.Constraint("Horizontal", 5),
    Sketcher.Constraint("Vertical", 6),
    Sketcher.Constraint("Horizontal", 7),
    Sketcher.Constraint("Vertical", 8),
    Sketcher.Constraint("Horizontal", 9),
    Sketcher.Constraint("Vertical", 10),
    Sketcher.Constraint("Horizontal", 11),
    Sketcher.Constraint("Vertical", 12),
    Sketcher.Constraint("Horizontal", 13),
    Sketcher.Constraint("Vertical", 14),
    Sketcher.Constraint("Horizontal", 15),
    Sketcher.Constraint("Symmetric", 2, 2, 8, 2, -1, 1),
    Sketcher.Constraint("Symmetric", 0, 2, 10, 2, -1, 1),
    Sketcher.Constraint("Symmetric", 6, 2, 12, 2, -1, 1),
    Sketcher.Constraint("Symmetric", 4, 2, 14, 2, -1, 1),
    Sketcher.Constraint("Symmetric", 1, 2, 4, 2, -2),
    Sketcher.Constraint("Symmetric", 3, 2, 6, 2, -2),
    Sketcher.Constraint("DistanceX", 1, 1, 1, 2, Q("4 mm")),
    Sketcher.Constraint("DistanceY", 0, 1, 0, 2, Q("8 mm")),
    Sketcher.Constraint("DistanceY", 0, 2, -1, 1, Q("4 mm")),
    Sketcher.Constraint("DistanceX", 1, 2, 4, 2, Q("11 mm")),
])
sketch13.setExpression("Constraints[38]", "Params.sketch13_width")
sketch13.setExpression("Constraints[39]", "Params.sketch13_height")
pocket4 = body6.newObject("PartDesign::Pocket", "Pocket003")
pocket4.Profile = sketch13
pocket4.setExpression("Length", "Params.pocket4_length")
pocket4.Reversed = True

doc.recompute()
